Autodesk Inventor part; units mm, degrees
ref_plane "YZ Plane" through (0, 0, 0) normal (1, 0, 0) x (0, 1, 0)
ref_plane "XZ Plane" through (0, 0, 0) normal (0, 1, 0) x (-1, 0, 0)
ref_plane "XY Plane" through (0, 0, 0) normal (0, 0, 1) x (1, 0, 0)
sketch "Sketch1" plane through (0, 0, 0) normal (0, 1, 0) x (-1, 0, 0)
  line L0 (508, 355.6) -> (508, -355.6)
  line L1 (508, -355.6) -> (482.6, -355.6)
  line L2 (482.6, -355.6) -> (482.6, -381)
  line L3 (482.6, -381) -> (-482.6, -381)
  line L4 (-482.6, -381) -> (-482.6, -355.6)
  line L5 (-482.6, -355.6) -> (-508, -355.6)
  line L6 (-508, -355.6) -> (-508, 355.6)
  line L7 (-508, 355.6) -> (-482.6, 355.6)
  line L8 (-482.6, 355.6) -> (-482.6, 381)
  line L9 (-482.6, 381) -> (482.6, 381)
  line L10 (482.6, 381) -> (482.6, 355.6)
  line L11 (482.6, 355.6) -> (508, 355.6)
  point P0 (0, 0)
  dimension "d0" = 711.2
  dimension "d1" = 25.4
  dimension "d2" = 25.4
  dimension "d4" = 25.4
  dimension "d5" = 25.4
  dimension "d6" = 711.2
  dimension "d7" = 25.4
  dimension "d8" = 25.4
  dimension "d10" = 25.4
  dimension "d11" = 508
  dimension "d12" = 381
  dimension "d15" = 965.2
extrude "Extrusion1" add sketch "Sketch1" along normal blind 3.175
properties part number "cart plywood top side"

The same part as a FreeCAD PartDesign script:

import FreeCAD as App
import Part
import Sketcher
from FreeCAD import Vector
Q = App.Units.Quantity

doc = App.newDocument("Part")
body = doc.addObject("PartDesign::Body", "Body")

# Sketch on XZ plane
sketch1 = doc.addObject("Sketcher::SketchObject", "Sketch")
body.addObject(sketch1)
sketch1.AttachmentSupport = (doc.XZ_Plane, [""])
sketch1.MapMode = "FlatFace"
sketch1.addGeometry([
    Part.LineSegment(Vector(-508, -356, 0), Vector(-508, 356, 0)),  # 0
    Part.LineSegment(Vector(-508, 356, 0), Vector(-483, 356, 0)),  # 1
    Part.LineSegment(Vector(-483, 356, 0), Vector(-483, 381, 0)),  # 2
    Part.LineSegment(Vector(-483, 381, 0), Vector(483, 381, 0)),  # 3
    Part.LineSegment(Vector(483, 381, 0), Vector(483, 356, 0)),  # 4
    Part.LineSegment(Vector(483, 356, 0), Vector(508, 356, 0)),  # 5
    Part.LineSegment(Vector(508, 356, 0), Vector(508, -356, 0)),  # 6
    Part.LineSegment(Vector(508, -356, 0), Vector(483, -356, 0)),  # 7
    Part.LineSegment(Vector(483, -356, 0), Vector(483, -381, 0)),  # 8
    Part.LineSegment(Vector(483, -381, 0), Vector(-483, -381, 0)),  # 9
    Part.LineSegment(Vector(-483, -381, 0), Vector(-483, -356, 0)),  # 10
    Part.LineSegment(Vector(-483, -356, 0), Vector(-508, -356, 0)),  # 11
], False)
sketch1.addConstraint([
    Sketcher.Constraint("Coincident", 0, 2, 1, 1),
    Sketcher.Constraint("Coincident", 1, 2, 2, 1),
    Sketcher.Constraint("Coincident", 2, 2, 3, 1),
    Sketcher.Constraint("Coincident", 3, 2, 4, 1),
    Sketcher.Constraint("Coincident", 4, 2, 5, 1),
    Sketcher.Constraint("Coincident", 5, 2, 6, 1),
    Sketcher.Constraint("Coincident", 6, 2, 7, 1),
    Sketcher.Constraint("Coincident", 7, 2, 8, 1),
    Sketcher.Constraint("Coincident", 8, 2, 9, 1),
    Sketcher.Constraint("Coincident", 9, 2, 10, 1),
    Sketcher.Constraint("Coincident", 10, 2, 11, 1),
    Sketcher.Constraint("Coincident", 11, 2, 0, 1),
    Sketcher.Constraint("Vertical", 0),
    Sketcher.Constraint("Horizontal", 1),
    Sketcher.Constraint("Vertical", 2),
    Sketcher.Constraint("Horizontal", 3),
    Sketcher.Constraint("Vertical", 4),
    Sketcher.Constraint("Horizontal", 5),
    Sketcher.Constraint("Vertical", 6),
    Sketcher.Constraint("Horizontal", 7),
    Sketcher.Constraint("Vertical", 8),
    Sketcher.Constraint("Horizontal", 9),
    Sketcher.Constraint("Vertical", 10),
    Sketcher.Constraint("Horizontal", 11),
    Sketcher.Constraint("Symmetric", 0, 2, 6, 2, -1, 1),
    Sketcher.Constraint("Symmetric", 2, 2, 8, 2, -1, 1),
    Sketcher.Constraint("Symmetric", 4, 2, 10, 2, -1, 1),
    Sketcher.Constraint("Symmetric", 1, 2, 4, 2, -2),
    Sketcher.Constraint("Equal", 11, 2),
    Sketcher.Constraint("DistanceX", 1, 1, 1, 2, Q("1 in")),
    Sketcher.Constraint("DistanceX", 3, 1, 3, 2, Q("38 in")),
    Sketcher.Constraint("DistanceY", 0, 1, 0, 2, Q("28 in")),
])
pad1 = doc.addObject("PartDesign::Pad", "Pad")
body.addObject(pad1)
pad1.Profile = sketch1
pad1.Length = Q("0.125 in")
pad1.Reversed = True

doc.recompute()
